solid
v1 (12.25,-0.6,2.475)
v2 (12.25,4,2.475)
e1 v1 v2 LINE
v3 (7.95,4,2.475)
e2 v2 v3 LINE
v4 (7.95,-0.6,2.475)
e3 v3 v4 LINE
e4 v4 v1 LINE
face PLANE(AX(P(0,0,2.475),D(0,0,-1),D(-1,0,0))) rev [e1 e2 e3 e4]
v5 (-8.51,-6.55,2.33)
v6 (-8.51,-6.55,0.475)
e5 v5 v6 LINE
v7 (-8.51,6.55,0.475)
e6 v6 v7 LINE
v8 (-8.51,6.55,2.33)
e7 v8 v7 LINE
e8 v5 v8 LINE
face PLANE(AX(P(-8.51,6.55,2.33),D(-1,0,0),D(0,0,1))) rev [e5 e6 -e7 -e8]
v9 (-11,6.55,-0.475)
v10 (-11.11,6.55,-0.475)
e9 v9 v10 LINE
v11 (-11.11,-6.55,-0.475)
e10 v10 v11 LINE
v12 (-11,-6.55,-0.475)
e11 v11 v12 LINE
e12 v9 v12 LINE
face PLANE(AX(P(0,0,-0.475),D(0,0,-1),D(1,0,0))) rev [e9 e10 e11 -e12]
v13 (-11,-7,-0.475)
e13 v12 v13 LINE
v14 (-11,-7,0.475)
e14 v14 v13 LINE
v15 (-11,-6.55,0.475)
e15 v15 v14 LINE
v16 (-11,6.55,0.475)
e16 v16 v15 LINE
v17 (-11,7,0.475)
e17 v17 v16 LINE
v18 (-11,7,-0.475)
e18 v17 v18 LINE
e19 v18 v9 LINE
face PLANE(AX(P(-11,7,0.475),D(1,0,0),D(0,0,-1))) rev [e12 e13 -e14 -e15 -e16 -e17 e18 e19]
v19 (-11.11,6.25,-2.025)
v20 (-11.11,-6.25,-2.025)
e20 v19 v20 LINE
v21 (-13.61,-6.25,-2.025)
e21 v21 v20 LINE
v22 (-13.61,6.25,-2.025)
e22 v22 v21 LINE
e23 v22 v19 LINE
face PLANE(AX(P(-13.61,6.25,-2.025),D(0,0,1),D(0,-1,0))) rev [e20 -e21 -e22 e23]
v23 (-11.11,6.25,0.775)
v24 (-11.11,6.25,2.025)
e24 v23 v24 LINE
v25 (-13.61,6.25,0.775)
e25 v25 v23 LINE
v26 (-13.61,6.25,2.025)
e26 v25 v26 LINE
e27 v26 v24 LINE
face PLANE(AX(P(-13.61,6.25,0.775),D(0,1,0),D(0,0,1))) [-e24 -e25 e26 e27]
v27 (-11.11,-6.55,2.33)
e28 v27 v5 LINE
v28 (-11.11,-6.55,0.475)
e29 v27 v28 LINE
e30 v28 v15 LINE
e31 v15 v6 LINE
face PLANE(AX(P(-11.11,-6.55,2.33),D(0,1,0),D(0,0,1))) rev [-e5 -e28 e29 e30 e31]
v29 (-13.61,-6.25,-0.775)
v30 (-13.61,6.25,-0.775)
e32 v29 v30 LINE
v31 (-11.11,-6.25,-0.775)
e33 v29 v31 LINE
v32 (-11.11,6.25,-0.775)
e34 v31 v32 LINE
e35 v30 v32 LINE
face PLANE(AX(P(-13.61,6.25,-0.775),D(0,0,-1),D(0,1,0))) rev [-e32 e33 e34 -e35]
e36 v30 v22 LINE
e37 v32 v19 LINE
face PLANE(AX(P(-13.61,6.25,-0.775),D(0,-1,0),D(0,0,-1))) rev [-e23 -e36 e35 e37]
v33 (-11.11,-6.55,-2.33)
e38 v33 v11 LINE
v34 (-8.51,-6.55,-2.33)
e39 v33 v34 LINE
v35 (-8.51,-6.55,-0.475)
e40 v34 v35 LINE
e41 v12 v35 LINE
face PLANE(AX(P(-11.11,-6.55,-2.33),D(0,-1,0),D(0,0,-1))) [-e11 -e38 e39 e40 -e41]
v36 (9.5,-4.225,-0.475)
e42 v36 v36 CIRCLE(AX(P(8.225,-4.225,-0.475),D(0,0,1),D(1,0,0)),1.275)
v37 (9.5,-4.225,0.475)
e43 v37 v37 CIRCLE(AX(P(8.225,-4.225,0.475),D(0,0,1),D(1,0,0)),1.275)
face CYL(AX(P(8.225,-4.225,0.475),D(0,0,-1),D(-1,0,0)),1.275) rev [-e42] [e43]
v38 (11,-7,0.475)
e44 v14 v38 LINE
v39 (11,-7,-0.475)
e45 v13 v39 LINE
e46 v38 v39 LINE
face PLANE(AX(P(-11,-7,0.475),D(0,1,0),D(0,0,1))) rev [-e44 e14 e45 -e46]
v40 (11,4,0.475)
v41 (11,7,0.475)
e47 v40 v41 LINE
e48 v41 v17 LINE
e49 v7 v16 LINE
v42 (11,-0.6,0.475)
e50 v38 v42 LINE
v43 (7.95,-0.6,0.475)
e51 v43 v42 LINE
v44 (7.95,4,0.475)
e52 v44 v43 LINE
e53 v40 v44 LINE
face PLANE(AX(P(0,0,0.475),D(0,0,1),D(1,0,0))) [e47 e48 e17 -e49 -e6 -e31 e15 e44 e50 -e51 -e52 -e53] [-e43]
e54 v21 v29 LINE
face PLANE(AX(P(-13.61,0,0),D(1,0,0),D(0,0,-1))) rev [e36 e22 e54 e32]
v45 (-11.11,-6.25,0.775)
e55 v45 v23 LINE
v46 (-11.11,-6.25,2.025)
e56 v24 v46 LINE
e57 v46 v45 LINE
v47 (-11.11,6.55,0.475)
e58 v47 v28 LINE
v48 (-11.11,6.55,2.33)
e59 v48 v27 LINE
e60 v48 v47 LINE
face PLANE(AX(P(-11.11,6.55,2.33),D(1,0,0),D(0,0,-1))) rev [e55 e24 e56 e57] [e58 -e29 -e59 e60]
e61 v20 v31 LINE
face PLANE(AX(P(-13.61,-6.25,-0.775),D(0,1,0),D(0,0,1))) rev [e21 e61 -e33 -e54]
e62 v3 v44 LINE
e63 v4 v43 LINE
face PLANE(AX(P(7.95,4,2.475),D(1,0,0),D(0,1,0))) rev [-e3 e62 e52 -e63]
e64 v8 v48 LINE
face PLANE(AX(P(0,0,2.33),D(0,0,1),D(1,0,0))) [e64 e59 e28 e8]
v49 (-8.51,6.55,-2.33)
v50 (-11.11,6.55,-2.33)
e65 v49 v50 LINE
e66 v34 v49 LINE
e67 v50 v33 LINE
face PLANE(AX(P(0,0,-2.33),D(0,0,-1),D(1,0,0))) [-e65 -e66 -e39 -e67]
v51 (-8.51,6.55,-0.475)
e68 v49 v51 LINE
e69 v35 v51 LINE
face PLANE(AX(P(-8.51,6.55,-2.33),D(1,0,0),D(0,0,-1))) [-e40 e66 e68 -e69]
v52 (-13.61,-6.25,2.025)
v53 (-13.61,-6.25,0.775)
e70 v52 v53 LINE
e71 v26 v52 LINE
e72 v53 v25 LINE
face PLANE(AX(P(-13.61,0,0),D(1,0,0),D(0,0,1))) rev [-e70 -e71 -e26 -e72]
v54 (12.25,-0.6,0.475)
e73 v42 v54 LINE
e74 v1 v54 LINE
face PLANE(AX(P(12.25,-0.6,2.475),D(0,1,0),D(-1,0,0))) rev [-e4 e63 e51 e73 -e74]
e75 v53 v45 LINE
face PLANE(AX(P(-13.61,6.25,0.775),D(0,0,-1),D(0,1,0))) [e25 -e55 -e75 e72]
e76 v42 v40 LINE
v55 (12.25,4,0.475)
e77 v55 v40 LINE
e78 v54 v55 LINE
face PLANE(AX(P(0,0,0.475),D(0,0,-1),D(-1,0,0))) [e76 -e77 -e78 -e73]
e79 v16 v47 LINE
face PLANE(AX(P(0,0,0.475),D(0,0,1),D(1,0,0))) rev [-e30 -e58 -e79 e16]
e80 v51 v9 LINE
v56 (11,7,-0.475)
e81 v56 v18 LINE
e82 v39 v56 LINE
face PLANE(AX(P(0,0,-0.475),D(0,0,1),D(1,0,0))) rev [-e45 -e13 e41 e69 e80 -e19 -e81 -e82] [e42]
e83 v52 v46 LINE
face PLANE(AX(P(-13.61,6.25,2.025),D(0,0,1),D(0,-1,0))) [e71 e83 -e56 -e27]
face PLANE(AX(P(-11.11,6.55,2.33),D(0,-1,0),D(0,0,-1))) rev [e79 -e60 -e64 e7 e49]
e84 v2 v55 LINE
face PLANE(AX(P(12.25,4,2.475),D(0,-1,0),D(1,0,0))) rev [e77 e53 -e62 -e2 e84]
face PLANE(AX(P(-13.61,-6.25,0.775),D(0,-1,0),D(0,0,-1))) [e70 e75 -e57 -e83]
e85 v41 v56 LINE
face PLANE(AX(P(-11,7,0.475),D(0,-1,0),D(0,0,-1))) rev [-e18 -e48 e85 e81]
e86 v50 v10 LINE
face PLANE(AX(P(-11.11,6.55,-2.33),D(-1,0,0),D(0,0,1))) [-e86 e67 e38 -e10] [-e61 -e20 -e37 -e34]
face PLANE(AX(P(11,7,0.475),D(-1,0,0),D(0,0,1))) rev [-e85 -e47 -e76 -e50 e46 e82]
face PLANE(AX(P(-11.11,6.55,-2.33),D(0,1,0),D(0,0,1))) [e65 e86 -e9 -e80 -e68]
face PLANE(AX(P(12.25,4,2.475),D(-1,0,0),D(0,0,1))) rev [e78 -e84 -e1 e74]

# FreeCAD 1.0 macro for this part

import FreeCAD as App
import Part
import Sketcher

V = App.Vector
Q = App.Units.Quantity


def add_polygon(sketch, points):
    """Adds a closed chain of lines whose ends are joined by coincident constraints."""
    first, n = sketch.GeometryCount, len(points)
    for a, b in zip(points, points[1:] + points[:1]):
        sketch.addGeometry(Part.LineSegment(App.Vector(*a, 0), App.Vector(*b, 0)), False)
    for i in range(n):
        sketch.addConstraint(Sketcher.Constraint("Coincident", first + i, 2, first + (i + 1) % n, 1))

doc = App.newDocument("Part")
body = doc.addObject("PartDesign::Body", "Body")

# Sketch on XY plane
sketch1 = body.newObject("Sketcher::SketchObject", "Sketch")
sketch1.AttachmentSupport = (doc.getObject("XY_Plane"), [""])
sketch1.MapMode = "FlatFace"
add_polygon(sketch1, [(-11, 7), (-11, -7), (11, -7), (11, 7)])  # lines 0-3
sketch1.addGeometry(Part.Circle(V(8.2, -4.2, 0), V(0, 0, 1), 1.3), False)  # 4
sketch1.addConstraint(Sketcher.Constraint("Vertical", 0))
sketch1.addConstraint(Sketcher.Constraint("Horizontal", 1))
sketch1.addConstraint(Sketcher.Constraint("Vertical", 2))
sketch1.addConstraint(Sketcher.Constraint("Horizontal", 3))
sketch1.addConstraint(Sketcher.Constraint("Symmetric", 0, 2, 2, 2, -1, 1))
sketch1.addConstraint(Sketcher.Constraint("Diameter", 4, Q("2.55 mm")))
sketch1.addConstraint(Sketcher.Constraint("DistanceX", 1, 1, 1, 2, Q("22 mm")))
sketch1.addConstraint(Sketcher.Constraint("DistanceY", 0, 2, 0, 1, Q("14 mm")))
sketch1.addConstraint(Sketcher.Constraint("DistanceX", -1, 1, 4, 3, Q("8.225 mm")))
sketch1.addConstraint(Sketcher.Constraint("DistanceY", 4, 3, -1, 1, Q("4.225 mm")))
pad1 = body.newObject("PartDesign::Pad", "Pad")
pad1.Profile = sketch1
pad1.Length = 0.95
pad1.Midplane = True

# Sketch on XY plane
sketch2 = body.newObject("Sketcher::SketchObject", "Sketch001")
sketch2.AttachmentSupport = (doc.getObject("XY_Plane"), [""])
sketch2.MapMode = "FlatFace"
sketch2.AttachmentOffset = App.Placement(V(0, 0, 0.475), App.Rotation())
add_polygon(sketch2, [(-11.1, 6.5), (-11.1, -6.5), (-8.5, -6.5), (-8.5, 6.5)])  # lines 0-3
sketch2.addConstraint(Sketcher.Constraint("Vertical", 0))
sketch2.addConstraint(Sketcher.Constraint("Horizontal", 1))
sketch2.addConstraint(Sketcher.Constraint("Vertical", 2))
sketch2.addConstraint(Sketcher.Constraint("Horizontal", 3))
sketch2.addConstraint(Sketcher.Constraint("DistanceX", 1, 1, 1, 2, Q("2.6 mm")))
sketch2.addConstraint(Sketcher.Constraint("DistanceY", 0, 2, 0, 1, Q("13.1 mm")))
sketch2.addConstraint(Sketcher.Constraint("DistanceX", 0, 2, -1, 1, Q("11.11 mm")))
sketch2.addConstraint(Sketcher.Constraint("DistanceY", 0, 2, -1, 1, Q("6.55 mm")))
pad2 = body.newObject("PartDesign::Pad", "Pad001")
pad2.Profile = sketch2
pad2.Length = 1.855
doc.recompute()

mirrored = body.newObject("PartDesign::Mirrored", "Mirrored")
mirrored.Originals = [pad2]
mirrored.MirrorPlane = (doc.getObject("XY_Plane"), [""])
body.Tip = mirrored

# Sketch on YZ plane
sketch3 = body.newObject("Sketcher::SketchObject", "Sketch002")
sketch3.AttachmentSupport = (doc.getObject("YZ_Plane"), [""])
sketch3.MapMode = "FlatFace"
sketch3.AttachmentOffset = App.Placement(V(0, 0, -11.11), App.Rotation())
add_polygon(sketch3, [(6.2, -2), (-6.2, -2), (-6.2, -0.8), (6.2, -0.8)])  # lines 0-3
sketch3.addConstraint(Sketcher.Constraint("Horizontal", 0))
sketch3.addConstraint(Sketcher.Constraint("Vertical", 1))
sketch3.addConstraint(Sketcher.Constraint("Horizontal", 2))
sketch3.addConstraint(Sketcher.Constraint("Vertical", 3))
sketch3.addConstraint(Sketcher.Constraint("DistanceX", 0, 2, 0, 1, Q("12.5 mm")))
sketch3.addConstraint(Sketcher.Constraint("DistanceY", 1, 1, 1, 2, Q("1.25 mm")))
sketch3.addConstraint(Sketcher.Constraint("DistanceX", 0, 2, -1, 1, Q("6.25 mm")))
sketch3.addConstraint(Sketcher.Constraint("DistanceY", 0, 2, -1, 1, Q("2.025 mm")))
pad3 = body.newObject("PartDesign::Pad", "Pad002")
pad3.Profile = sketch3
pad3.Length = 2.5
pad3.Reversed = True
doc.recompute()

mirrored2 = body.newObject("PartDesign::Mirrored", "Mirrored001")
mirrored2.Originals = [pad3]
mirrored2.MirrorPlane = (doc.getObject("XY_Plane"), [""])
body.Tip = mirrored2

# Sketch on XY plane
sketch4 = body.newObject("Sketcher::SketchObject", "Sketch003")
sketch4.AttachmentSupport = (doc.getObject("XY_Plane"), [""])
sketch4.MapMode = "FlatFace"
sketch4.AttachmentOffset = App.Placement(V(0, 0, 0.475), App.Rotation())
add_polygon(sketch4, [(8, 4), (8, -0.6), (12.2, -0.6), (12.2, 4)])  # lines 0-3
sketch4.addConstraint(Sketcher.Constraint("Vertical", 0))
sketch4.addConstraint(Sketcher.Constraint("Horizontal", 1))
sketch4.addConstraint(Sketcher.Constraint("Vertical", 2))
sketch4.addConstraint(Sketcher.Constraint("Horizontal", 3))
sketch4.addConstraint(Sketcher.Constraint("DistanceX", 1, 1, 1, 2, Q("4.3 mm")))
sketch4.addConstraint(Sketcher.Constraint("DistanceY", 0, 2, 0, 1, Q("4.6 mm")))
sketch4.addConstraint(Sketcher.Constraint("DistanceY", -1, 1, 2, 2, Q("4 mm")))
sketch4.addConstraint(Sketcher.Constraint("DistanceX", -1, 1, 0, 2, Q("7.95 mm")))
pad4 = body.newObject("PartDesign::Pad", "Pad003")
pad4.Profile = sketch4
pad4.Length = 2

doc.recompute()
